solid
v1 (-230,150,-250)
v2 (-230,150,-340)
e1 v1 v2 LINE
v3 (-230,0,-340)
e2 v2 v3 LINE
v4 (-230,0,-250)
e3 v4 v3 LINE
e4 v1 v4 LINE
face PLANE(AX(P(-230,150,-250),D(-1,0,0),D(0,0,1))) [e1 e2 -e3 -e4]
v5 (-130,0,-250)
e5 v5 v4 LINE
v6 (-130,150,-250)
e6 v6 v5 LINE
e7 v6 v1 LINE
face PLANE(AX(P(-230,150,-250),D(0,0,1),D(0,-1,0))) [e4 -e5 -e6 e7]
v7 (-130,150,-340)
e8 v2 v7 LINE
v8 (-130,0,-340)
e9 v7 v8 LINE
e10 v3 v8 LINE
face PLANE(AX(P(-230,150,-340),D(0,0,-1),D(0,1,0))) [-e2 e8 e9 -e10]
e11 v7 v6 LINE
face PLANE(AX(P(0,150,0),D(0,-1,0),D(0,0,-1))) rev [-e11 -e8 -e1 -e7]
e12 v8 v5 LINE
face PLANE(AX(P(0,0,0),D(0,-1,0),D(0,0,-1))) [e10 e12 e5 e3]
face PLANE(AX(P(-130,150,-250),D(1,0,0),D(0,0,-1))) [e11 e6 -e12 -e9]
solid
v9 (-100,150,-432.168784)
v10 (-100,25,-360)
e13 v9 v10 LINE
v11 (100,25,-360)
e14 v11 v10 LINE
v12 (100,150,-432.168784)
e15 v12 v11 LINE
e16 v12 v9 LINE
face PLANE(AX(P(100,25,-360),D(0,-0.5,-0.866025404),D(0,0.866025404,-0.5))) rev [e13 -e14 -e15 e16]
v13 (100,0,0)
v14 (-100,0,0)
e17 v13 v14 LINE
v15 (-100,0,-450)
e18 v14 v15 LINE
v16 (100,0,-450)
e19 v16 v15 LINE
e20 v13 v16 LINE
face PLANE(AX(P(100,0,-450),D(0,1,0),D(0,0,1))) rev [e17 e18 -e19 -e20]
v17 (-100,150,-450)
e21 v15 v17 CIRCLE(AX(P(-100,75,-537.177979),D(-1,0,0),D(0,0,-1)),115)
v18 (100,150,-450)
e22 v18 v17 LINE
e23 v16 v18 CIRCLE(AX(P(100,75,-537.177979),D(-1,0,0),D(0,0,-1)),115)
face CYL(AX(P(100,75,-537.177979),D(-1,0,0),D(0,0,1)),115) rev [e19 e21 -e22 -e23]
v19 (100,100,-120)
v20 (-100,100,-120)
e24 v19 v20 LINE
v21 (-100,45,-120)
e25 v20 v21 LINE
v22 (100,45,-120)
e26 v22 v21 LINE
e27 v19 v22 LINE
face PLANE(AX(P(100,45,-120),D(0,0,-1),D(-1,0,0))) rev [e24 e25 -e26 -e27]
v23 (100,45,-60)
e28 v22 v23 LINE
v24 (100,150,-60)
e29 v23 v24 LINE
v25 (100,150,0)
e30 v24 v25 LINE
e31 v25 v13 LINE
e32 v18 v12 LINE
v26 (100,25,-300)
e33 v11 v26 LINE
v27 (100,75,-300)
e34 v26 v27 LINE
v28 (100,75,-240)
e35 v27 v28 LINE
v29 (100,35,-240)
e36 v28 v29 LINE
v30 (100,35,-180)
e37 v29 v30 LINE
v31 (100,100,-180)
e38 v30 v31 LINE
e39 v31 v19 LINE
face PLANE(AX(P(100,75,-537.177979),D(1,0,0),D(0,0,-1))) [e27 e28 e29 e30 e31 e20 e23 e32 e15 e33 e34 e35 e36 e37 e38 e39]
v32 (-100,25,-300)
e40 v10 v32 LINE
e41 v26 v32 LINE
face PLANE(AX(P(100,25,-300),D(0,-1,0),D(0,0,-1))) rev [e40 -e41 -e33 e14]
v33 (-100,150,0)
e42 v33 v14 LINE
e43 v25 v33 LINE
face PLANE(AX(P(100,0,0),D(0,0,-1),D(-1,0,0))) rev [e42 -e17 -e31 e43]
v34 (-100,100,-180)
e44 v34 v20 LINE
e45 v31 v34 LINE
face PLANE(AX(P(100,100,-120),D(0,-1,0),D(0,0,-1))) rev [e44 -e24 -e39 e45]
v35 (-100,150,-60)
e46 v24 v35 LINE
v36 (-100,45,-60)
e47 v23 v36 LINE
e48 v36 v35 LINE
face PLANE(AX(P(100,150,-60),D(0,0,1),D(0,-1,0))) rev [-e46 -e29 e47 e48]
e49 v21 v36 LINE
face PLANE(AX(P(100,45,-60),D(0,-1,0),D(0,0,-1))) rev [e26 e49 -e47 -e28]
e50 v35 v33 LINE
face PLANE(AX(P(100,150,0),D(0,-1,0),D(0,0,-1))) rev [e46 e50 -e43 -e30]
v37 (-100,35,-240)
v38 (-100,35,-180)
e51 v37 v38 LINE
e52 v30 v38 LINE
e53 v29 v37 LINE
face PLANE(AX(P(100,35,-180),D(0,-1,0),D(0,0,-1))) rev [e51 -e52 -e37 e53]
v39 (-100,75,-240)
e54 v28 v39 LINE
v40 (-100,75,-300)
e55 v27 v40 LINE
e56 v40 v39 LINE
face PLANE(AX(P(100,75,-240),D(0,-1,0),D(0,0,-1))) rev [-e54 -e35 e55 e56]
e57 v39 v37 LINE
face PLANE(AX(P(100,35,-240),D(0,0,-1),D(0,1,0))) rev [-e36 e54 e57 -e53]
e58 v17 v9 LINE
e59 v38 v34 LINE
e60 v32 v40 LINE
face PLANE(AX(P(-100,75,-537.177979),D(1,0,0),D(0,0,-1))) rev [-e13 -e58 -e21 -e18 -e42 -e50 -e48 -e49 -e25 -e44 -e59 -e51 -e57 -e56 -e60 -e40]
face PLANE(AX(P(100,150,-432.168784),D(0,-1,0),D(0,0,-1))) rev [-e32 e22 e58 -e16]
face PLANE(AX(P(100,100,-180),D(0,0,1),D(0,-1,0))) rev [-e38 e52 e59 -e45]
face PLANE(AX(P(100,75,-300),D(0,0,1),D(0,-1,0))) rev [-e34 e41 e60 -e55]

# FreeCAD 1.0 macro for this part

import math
import FreeCAD as App
import Part
import Sketcher
Q = App.Units.Quantity


def add_polygon(sketch, points):
    """Adds a closed chain of lines whose ends are joined by coincident constraints."""
    first, n = sketch.GeometryCount, len(points)
    for a, b in zip(points, points[1:] + points[:1]):
        sketch.addGeometry(Part.LineSegment(App.Vector(*a, 0), App.Vector(*b, 0)), False)
    for i in range(n):
        sketch.addConstraint(Sketcher.Constraint("Coincident", first + i, 2, first + (i + 1) % n, 1))

doc = App.newDocument("Part")
body = doc.addObject("PartDesign::Body", "Body")

# Sketch on YZ plane
sketch1 = body.newObject("Sketcher::SketchObject", "Sketch")
sketch1.AttachmentSupport = (doc.getObject("YZ_Plane"), [""])
sketch1.MapMode = "FlatFace"
sketch1.addGeometry([
    Part.LineSegment(App.Vector(150, 0, 0), App.Vector(0, 0, 0)),  # 0
    Part.LineSegment(App.Vector(0, 0, 0), App.Vector(0, -450, 0)),  # 1
    Part.ArcOfCircle(Part.Circle(App.Vector(75, -537, 0), App.Vector(0, 0, 1), 115), math.radians(49), math.radians(131)),  # 2
    Part.LineSegment(App.Vector(150, -450, 0), App.Vector(150, -432, 0)),  # 3
    Part.LineSegment(App.Vector(150, -432, 0), App.Vector(25, -360, 0)),  # 4
    Part.LineSegment(App.Vector(25, -360, 0), App.Vector(25, -300, 0)),  # 5
    Part.LineSegment(App.Vector(25, -300, 0), App.Vector(75, -300, 0)),  # 6
    Part.LineSegment(App.Vector(75, -300, 0), App.Vector(75, -240, 0)),  # 7
    Part.LineSegment(App.Vector(75, -240, 0), App.Vector(35, -240, 0)),  # 8
    Part.LineSegment(App.Vector(35, -240, 0), App.Vector(35, -180, 0)),  # 9
    Part.LineSegment(App.Vector(35, -180, 0), App.Vector(100, -180, 0)),  # 10
    Part.LineSegment(App.Vector(100, -180, 0), App.Vector(100, -120, 0)),  # 11
    Part.LineSegment(App.Vector(100, -120, 0), App.Vector(45, -120, 0)),  # 12
    Part.LineSegment(App.Vector(45, -120, 0), App.Vector(45, -60, 0)),  # 13
    Part.LineSegment(App.Vector(45, -60, 0), App.Vector(150, -60, 0)),  # 14
    Part.LineSegment(App.Vector(150, -60, 0), App.Vector(150, 0, 0)),  # 15
], False)
sketch1.addConstraint([
    Sketcher.Constraint("Coincident", 0, 2, 1, 1),
    Sketcher.Constraint("Coincident", 1, 2, 2, 2),
    Sketcher.Constraint("Coincident", 2, 1, 3, 1),
    Sketcher.Constraint("Coincident", 3, 2, 4, 1),
    Sketcher.Constraint("Coincident", 4, 2, 5, 1),
    Sketcher.Constraint("Coincident", 5, 2, 6, 1),
    Sketcher.Constraint("Coincident", 6, 2, 7, 1),
    Sketcher.Constraint("Coincident", 7, 2, 8, 1),
    Sketcher.Constraint("Coincident", 8, 2, 9, 1),
    Sketcher.Constraint("Coincident", 9, 2, 10, 1),
    Sketcher.Constraint("Coincident", 10, 2, 11, 1),
    Sketcher.Constraint("Coincident", 11, 2, 12, 1),
    Sketcher.Constraint("Coincident", 12, 2, 13, 1),
    Sketcher.Constraint("Coincident", 13, 2, 14, 1),
    Sketcher.Constraint("Coincident", 14, 2, 15, 1),
    Sketcher.Constraint("Coincident", 15, 2, 0, 1),
    Sketcher.Constraint("Horizontal", 0),
    Sketcher.Constraint("Vertical", 1),
    Sketcher.Constraint("Vertical", 3),
    Sketcher.Constraint("Vertical", 5),
    Sketcher.Constraint("Horizontal", 6),
    Sketcher.Constraint("Vertical", 7),
    Sketcher.Constraint("Horizontal", 8),
    Sketcher.Constraint("Vertical", 9),
    Sketcher.Constraint("Horizontal", 10),
    Sketcher.Constraint("Vertical", 11),
    Sketcher.Constraint("Horizontal", 12),
    Sketcher.Constraint("Vertical", 13),
    Sketcher.Constraint("Horizontal", 14),
    Sketcher.Constraint("Vertical", 15),
    Sketcher.Constraint("Coincident", 0, 2, -1, 1),
    Sketcher.Constraint("Horizontal", 1, 2, 2, 1),
    Sketcher.Constraint("Vertical", 2, 3, 6, 2),
    Sketcher.Constraint("Vertical", 3, 2, 14, 2),
    Sketcher.Constraint("Equal", 5, 7),
    Sketcher.Constraint("Equal", 7, 9),
    Sketcher.Constraint("Equal", 9, 11),
    Sketcher.Constraint("Equal", 11, 13),
    Sketcher.Constraint("Equal", 13, 15),
    Sketcher.Constraint("Radius", 2, Q("115 mm")),
    Sketcher.Constraint("DistanceX", 0, 2, 0, 1, Q("150 mm")),
    Sketcher.Constraint("DistanceX", 6, 1, 6, 2, Q("50 mm")),
    Sketcher.Constraint("DistanceX", 8, 2, 8, 1, Q("40 mm")),
    Sketcher.Constraint("DistanceX", 10, 1, 10, 2, Q("65 mm")),
    Sketcher.Constraint("DistanceX", 12, 2, 12, 1, Q("55 mm")),
    Sketcher.Constraint("DistanceY", 1, 2, 1, 1, Q("450 mm")),
    Sketcher.Constraint("DistanceY", 5, 1, 5, 2, Q("60 mm")),
    Sketcher.Constraint("Angle", 4, Q("150 deg")),
])
pad1 = body.newObject("PartDesign::Pad", "Pad")
pad1.Profile = sketch1
pad1.Length = 200
pad1.Midplane = True
body2 = doc.addObject("PartDesign::Body", "Body001")

# Sketch on XZ plane
sketch2 = body2.newObject("Sketcher::SketchObject", "Sketch001")
sketch2.AttachmentSupport = (doc.getObject("XZ_Plane001"), [""])
sketch2.MapMode = "FlatFace"
add_polygon(sketch2, [(-230, -250), (-230, -340), (-130, -340), (-130, -250)])  # lines 0-3
sketch2.addConstraint([
    Sketcher.Constraint("Vertical", 0),
    Sketcher.Constraint("Horizontal", 1),
    Sketcher.Constraint("Vertical", 2),
    Sketcher.Constraint("Horizontal", 3),
    Sketcher.Constraint("DistanceX", 1, 1, 1, 2, Q("100 mm")),
    Sketcher.Constraint("DistanceY", 0, 2, 0, 1, Q("90 mm")),
    Sketcher.Constraint("DistanceX", 0, 2, -1, 1, Q("230 mm")),
    Sketcher.Constraint("DistanceY", 0, 2, -1, 1, Q("340 mm")),
])
pad2 = body2.newObject("PartDesign::Pad", "Pad001")
pad2.Profile = sketch2
pad2.Length = 150
pad2.Reversed = True

doc.recompute()
